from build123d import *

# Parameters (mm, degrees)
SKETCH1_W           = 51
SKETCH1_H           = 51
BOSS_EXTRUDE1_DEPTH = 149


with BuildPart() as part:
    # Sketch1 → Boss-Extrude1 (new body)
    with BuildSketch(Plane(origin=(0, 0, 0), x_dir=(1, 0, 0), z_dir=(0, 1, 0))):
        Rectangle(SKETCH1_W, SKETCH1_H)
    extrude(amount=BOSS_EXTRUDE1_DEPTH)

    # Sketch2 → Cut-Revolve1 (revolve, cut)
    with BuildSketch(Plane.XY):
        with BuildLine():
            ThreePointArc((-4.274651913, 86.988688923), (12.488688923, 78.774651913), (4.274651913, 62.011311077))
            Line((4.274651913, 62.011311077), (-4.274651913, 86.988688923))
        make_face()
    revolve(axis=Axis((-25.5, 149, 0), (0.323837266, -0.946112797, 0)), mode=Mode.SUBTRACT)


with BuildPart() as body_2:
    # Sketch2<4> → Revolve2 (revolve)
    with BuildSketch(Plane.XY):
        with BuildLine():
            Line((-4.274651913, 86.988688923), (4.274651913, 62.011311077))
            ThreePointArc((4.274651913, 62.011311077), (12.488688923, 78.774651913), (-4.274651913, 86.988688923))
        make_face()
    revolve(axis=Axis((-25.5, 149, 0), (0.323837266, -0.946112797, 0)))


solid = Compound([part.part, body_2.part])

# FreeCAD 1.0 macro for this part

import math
import FreeCAD as App
import Part
import Sketcher
from FreeCAD import Vector
Q = App.Units.Quantity


def add_polygon(sketch, points):
    """Adds a closed chain of lines whose ends are joined by coincident constraints."""
    first, n = sketch.GeometryCount, len(points)
    for a, b in zip(points, points[1:] + points[:1]):
        sketch.addGeometry(Part.LineSegment(App.Vector(*a, 0), App.Vector(*b, 0)), False)
    for i in range(n):
        sketch.addConstraint(Sketcher.Constraint("Coincident", first + i, 2, first + (i + 1) % n, 1))

doc = App.newDocument("Part")
body = doc.addObject("PartDesign::Body", "Body")

sketch1 = body.newObject("Sketcher::SketchObject", "Sketch")
sketch1.AttachmentSupport = (doc.getObject("XZ_Plane"), [""])
sketch1.MapMode = "FlatFace"
add_polygon(sketch1, [(-25.5, -25.5), (-25.5, 25.5), (25.5, 25.5), (25.5, -25.5)])
sketch1.addConstraint(Sketcher.Constraint("Vertical", 0))
sketch1.addConstraint(Sketcher.Constraint("Horizontal", 1))
sketch1.addConstraint(Sketcher.Constraint("Vertical", 2))
sketch1.addConstraint(Sketcher.Constraint("Horizontal", 3))
sketch1.addConstraint(Sketcher.Constraint("Symmetric", 0, 2, 2, 2, -1, 1))
sketch1.addConstraint(Sketcher.Constraint("Equal", 3, 0))
sketch1.addConstraint(Sketcher.Constraint("DistanceX", 1, 1, 1, 2, Q("51 mm")))
pad1 = body.newObject("PartDesign::Pad", "Pad")
pad1.Profile = sketch1
pad1.Length = 149
pad1.Reversed = True

sketch2 = body.newObject("Sketcher::SketchObject", "Sketch001")
sketch2.AttachmentSupport = (doc.getObject("XY_Plane"), [""])
sketch2.MapMode = "FlatFace"
sketch2.addGeometry(Part.ArcOfCircle(Part.Circle(Vector(0, 74.5, 0), Vector(0, 0, 1), 13.2), math.radians(-71.104854), math.radians(108.895146)), False)
sketch2.addGeometry(Part.LineSegment(Vector(-4.274652, 86.988689, 0), Vector(4.274652, 62.011311, 0)), False)
sketch2.addGeometry(Part.LineSegment(Vector(-4.274652, 86.988689, 0), Vector(4.274652, 62.011311, 0)), True)
sketch2.addConstraint(Sketcher.Constraint("Coincident", 0, 1, 1, 2))
sketch2.addConstraint(Sketcher.Constraint("Coincident", 1, 1, 0, 2))
sketch2.addConstraint(Sketcher.Constraint("Coincident", 2, 1, 1, 1))
sketch2.addConstraint(Sketcher.Constraint("Coincident", 2, 2, 0, 1))
sketch2.addConstraint(Sketcher.Constraint("PointOnObject", 0, 3, -2))
sketch2.addConstraint(Sketcher.Constraint("Radius", 0, Q("13.2 mm")))
sketch2.addConstraint(Sketcher.Constraint("DistanceY", -1, 1, 0, 3, Q("74.5 mm")))
sketch2.addConstraint(Sketcher.Constraint("DistanceX", -1, 1, 0, 1, Q("4.274652 mm")))
sketch2.addConstraint(Sketcher.Constraint("DistanceX", 1, 1, -1, 1, Q("4.274652 mm")))
groove = body.newObject("PartDesign::Groove", "Groove")
groove.Profile = sketch2
groove.ReferenceAxis = (sketch2, ["Axis0"])
groove.Angle = 360
body2 = doc.addObject("PartDesign::Body", "Body001")

sketch3 = body2.newObject("Sketcher::SketchObject", "Sketch002")
sketch3.AttachmentSupport = (doc.getObject("XY_Plane001"), [""])
sketch3.MapMode = "FlatFace"
sketch3.addGeometry(Part.LineSegment(Vector(-4.274652, 86.988689, 0), Vector(4.274652, 62.011311, 0)), False)
sketch3.addGeometry(Part.ArcOfCircle(Part.Circle(Vector(0, 74.5, 0), Vector(0, 0, 1), 13.2), math.radians(-71.104854), math.radians(108.895146)), False)
sketch3.addGeometry(Part.LineSegment(Vector(-4.274652, 86.988689, 0), Vector(4.274652, 62.011311, 0)), True)
sketch3.addConstraint(Sketcher.Constraint("Coincident", 0, 1, 1, 2))
sketch3.addConstraint(Sketcher.Constraint("Coincident", 1, 1, 0, 2))
sketch3.addConstraint(Sketcher.Constraint("Coincident", 2, 1, 0, 1))
sketch3.addConstraint(Sketcher.Constraint("Coincident", 2, 2, 1, 1))
sketch3.addConstraint(Sketcher.Constraint("PointOnObject", 1, 3, -2))
sketch3.addConstraint(Sketcher.Constraint("Radius", 1, Q("13.2 mm")))
sketch3.addConstraint(Sketcher.Constraint("DistanceY", -1, 1, 1, 3, Q("74.5 mm")))
sketch3.addConstraint(Sketcher.Constraint("DistanceX", 0, 1, -1, 1, Q("4.274652 mm")))
sketch3.addConstraint(Sketcher.Constraint("DistanceX", -1, 1, 1, 1, Q("4.274652 mm")))
revolution = body2.newObject("PartDesign::Revolution", "Revolution")
revolution.Profile = sketch3
revolution.ReferenceAxis = (sketch3, ["Axis0"])
revolution.Angle = 360

doc.recompute()
